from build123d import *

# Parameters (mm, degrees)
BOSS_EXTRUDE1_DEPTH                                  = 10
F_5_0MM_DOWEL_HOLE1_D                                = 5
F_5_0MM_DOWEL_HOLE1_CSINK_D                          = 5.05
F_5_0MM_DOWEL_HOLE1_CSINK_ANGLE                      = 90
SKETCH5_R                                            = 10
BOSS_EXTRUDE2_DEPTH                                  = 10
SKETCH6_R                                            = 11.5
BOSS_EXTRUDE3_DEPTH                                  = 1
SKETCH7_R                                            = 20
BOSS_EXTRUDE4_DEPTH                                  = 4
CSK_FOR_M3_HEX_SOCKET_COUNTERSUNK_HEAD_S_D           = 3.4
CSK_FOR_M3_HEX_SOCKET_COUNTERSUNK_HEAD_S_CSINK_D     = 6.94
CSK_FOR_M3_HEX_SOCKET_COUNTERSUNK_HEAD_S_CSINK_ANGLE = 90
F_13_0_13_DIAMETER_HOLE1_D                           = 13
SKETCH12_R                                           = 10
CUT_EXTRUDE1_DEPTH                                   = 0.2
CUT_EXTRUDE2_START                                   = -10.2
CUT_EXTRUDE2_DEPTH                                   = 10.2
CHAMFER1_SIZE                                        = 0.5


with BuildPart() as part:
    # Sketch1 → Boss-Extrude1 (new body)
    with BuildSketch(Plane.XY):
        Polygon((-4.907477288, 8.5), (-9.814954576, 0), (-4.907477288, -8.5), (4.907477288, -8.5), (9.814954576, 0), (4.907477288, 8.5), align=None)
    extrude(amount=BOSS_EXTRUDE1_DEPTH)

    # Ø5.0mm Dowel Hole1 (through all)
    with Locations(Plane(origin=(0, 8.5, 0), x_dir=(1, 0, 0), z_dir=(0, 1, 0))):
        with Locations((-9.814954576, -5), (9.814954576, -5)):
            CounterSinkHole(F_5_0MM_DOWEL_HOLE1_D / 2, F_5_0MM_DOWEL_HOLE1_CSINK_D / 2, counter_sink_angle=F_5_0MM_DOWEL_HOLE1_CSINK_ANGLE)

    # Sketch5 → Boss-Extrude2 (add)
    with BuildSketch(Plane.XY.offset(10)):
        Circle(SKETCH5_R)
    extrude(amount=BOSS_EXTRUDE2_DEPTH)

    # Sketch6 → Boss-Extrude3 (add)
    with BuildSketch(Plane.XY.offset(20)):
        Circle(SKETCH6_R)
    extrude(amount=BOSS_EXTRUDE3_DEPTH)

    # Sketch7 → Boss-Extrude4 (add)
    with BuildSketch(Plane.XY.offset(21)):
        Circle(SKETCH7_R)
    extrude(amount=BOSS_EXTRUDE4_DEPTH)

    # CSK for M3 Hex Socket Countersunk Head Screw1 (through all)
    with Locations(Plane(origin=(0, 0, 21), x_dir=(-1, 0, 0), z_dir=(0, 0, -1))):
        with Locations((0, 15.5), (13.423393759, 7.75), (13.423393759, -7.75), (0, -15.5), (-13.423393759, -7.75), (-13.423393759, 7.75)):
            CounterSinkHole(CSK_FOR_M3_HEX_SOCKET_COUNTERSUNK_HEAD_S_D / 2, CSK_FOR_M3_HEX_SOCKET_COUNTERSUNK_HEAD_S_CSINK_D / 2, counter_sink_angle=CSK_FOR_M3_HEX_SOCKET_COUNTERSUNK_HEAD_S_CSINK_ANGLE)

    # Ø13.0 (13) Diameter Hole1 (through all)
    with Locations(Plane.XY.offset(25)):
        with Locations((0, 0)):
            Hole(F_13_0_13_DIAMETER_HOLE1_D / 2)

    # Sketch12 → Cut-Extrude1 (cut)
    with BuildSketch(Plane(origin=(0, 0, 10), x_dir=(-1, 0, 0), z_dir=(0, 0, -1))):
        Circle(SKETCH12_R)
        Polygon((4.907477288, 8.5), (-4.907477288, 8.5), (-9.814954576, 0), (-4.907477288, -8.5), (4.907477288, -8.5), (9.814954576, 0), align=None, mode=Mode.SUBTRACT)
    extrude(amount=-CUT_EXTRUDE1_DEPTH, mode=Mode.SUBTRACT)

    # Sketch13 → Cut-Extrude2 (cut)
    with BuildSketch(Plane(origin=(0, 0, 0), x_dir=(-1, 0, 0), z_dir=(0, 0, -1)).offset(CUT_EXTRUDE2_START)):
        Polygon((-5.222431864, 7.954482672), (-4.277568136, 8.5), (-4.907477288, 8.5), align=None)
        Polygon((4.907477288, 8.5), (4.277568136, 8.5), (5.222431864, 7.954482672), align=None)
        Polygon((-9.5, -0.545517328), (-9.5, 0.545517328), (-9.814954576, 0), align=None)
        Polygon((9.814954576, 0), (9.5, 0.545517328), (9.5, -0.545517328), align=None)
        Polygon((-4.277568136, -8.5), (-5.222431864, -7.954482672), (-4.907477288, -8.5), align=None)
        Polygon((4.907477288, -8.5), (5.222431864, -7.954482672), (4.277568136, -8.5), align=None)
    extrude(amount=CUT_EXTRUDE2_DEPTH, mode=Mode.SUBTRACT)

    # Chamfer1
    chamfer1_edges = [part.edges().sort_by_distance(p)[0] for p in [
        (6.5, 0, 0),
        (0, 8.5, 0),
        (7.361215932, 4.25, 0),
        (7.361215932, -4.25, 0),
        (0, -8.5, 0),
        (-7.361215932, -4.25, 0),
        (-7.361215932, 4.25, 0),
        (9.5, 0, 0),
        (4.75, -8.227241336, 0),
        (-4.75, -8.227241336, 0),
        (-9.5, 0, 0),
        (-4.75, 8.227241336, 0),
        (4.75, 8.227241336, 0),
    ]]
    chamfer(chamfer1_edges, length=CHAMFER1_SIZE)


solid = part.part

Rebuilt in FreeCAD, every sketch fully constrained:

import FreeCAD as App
import Part
import Sketcher
from FreeCAD import Vector
Q = App.Units.Quantity


def edges_at(feature, points):
    """Names of the edges that pass closest to the given points."""
    edges = feature.Shape.Edges
    near = lambda p: min(range(len(edges)), key=lambda i: edges[i].distToShape(Part.Vertex(*p))[0])
    return sorted({f"Edge{near(p) + 1}" for p in points})


def add_polygon(sketch, points):
    """Adds a closed chain of lines whose ends are joined by coincident constraints."""
    first, n = sketch.GeometryCount, len(points)
    for a, b in zip(points, points[1:] + points[:1]):
        sketch.addGeometry(Part.LineSegment(App.Vector(*a, 0), App.Vector(*b, 0)), False)
    for i in range(n):
        sketch.addConstraint(Sketcher.Constraint("Coincident", first + i, 2, first + (i + 1) % n, 1))

doc = App.newDocument("Part")
body = doc.addObject("PartDesign::Body", "Body")

sketch1 = body.newObject("Sketcher::SketchObject", "Sketch")
sketch1.AttachmentSupport = (doc.getObject("XY_Plane"), [""])
sketch1.MapMode = "FlatFace"
add_polygon(sketch1, [(-5, 8), (-10, 0), (-5, -8), (5, -8), (10, 0), (5, 8)])
sketch1.addConstraint([
    Sketcher.Constraint("Horizontal", 2),
    Sketcher.Constraint("Horizontal", 5),
    Sketcher.Constraint("Symmetric", 0, 2, 3, 2, -1, 1),
    Sketcher.Constraint("Symmetric", 1, 2, 4, 2, -1, 1),
    Sketcher.Constraint("PointOnObject", 0, 2, -1),
    Sketcher.Constraint("Parallel", 0, 3),
    Sketcher.Constraint("Vertical", 2, 2, 4, 2),
    Sketcher.Constraint("Angle", 0, Q("-120 deg")),
    Sketcher.Constraint("DistanceY", 2, 2, 4, 2, Q("17 mm")),
    Sketcher.Constraint("DistanceX", 2, 1, 2, 2, Q("9.814955 mm")),
])
pad1 = body.newObject("PartDesign::Pad", "Pad")
pad1.Profile = sketch1
pad1.Length = 10

sketch2 = body.newObject("Sketcher::SketchObject", "Sketch001")
sketch2.AttachmentSupport = (doc.getObject("XZ_Plane"), [""])
sketch2.MapMode = "FlatFace"
sketch2.AttachmentOffset = App.Placement(Vector(0, 0, -8.5), App.Rotation())
sketch2.addGeometry([
    Part.Circle(Vector(-9.8, 5, 0), Vector(0, 0, 1), 2.5),
    Part.Circle(Vector(9.8, 5, 0), Vector(0, 0, 1), 2.5),
], False)
sketch2.addConstraint([
    Sketcher.Constraint("Equal", 0, 1),
    Sketcher.Constraint("Symmetric", 0, 3, 1, 3, -2),
    Sketcher.Constraint("Diameter", 0, Q("5 mm")),
    Sketcher.Constraint("DistanceY", -1, 1, 0, 3, Q("5 mm")),
    Sketcher.Constraint("DistanceX", 0, 3, 1, 3, Q("19.629909 mm")),
])
doc.recompute()
hole = body.newObject("PartDesign::Hole", "Hole")
hole.Profile = sketch2
hole.ThreadType = "None"
hole.Diameter = 5
hole.DepthType = "ThroughAll"
hole.HoleCutType = "Countersink"
hole.HoleCutDiameter = 5.05
hole.HoleCutCountersinkAngle = 90
hole.Reversed = True

sketch3 = body.newObject("Sketcher::SketchObject", "Sketch002")
sketch3.AttachmentSupport = (doc.getObject("XY_Plane"), [""])
sketch3.MapMode = "FlatFace"
sketch3.AttachmentOffset = App.Placement(Vector(0, 0, 10), App.Rotation())
sketch3.addGeometry(Part.Circle(Vector(0, 0, 0), Vector(0, 0, 1), 10), False)
sketch3.addConstraint([
    Sketcher.Constraint("Coincident", 0, 3, -1, 1),
    Sketcher.Constraint("Diameter", 0, Q("20 mm")),
])
pad2 = body.newObject("PartDesign::Pad", "Pad001")
pad2.Profile = sketch3
pad2.Length = 10

sketch4 = body.newObject("Sketcher::SketchObject", "Sketch003")
sketch4.AttachmentSupport = (doc.getObject("XY_Plane"), [""])
sketch4.MapMode = "FlatFace"
sketch4.AttachmentOffset = App.Placement(Vector(0, 0, 20), App.Rotation())
sketch4.addGeometry(Part.Circle(Vector(0, 0, 0), Vector(0, 0, 1), 12), False)
sketch4.addConstraint([
    Sketcher.Constraint("Coincident", 0, 3, -1, 1),
    Sketcher.Constraint("Diameter", 0, Q("23 mm")),
])
pad3 = body.newObject("PartDesign::Pad", "Pad002")
pad3.Profile = sketch4
pad3.Length = 1

sketch5 = body.newObject("Sketcher::SketchObject", "Sketch004")
sketch5.AttachmentSupport = (doc.getObject("XY_Plane"), [""])
sketch5.MapMode = "FlatFace"
sketch5.AttachmentOffset = App.Placement(Vector(0, 0, 21), App.Rotation())
sketch5.addGeometry(Part.Circle(Vector(0, 0, 0), Vector(0, 0, 1), 20), False)
sketch5.addConstraint([
    Sketcher.Constraint("Coincident", 0, 3, -1, 1),
    Sketcher.Constraint("Diameter", 0, Q("40 mm")),
])
pad4 = body.newObject("PartDesign::Pad", "Pad003")
pad4.Profile = sketch5
pad4.Length = 4

sketch6 = body.newObject("Sketcher::SketchObject", "Sketch005")
sketch6.AttachmentSupport = (doc.getObject("XY_Plane"), [""])
sketch6.MapMode = "FlatFace"
sketch6.AttachmentOffset = App.Placement(Vector(0, 0, 21), App.Rotation())
sketch6.addGeometry([
    Part.Circle(Vector(0, 15.5, 0), Vector(0, 0, 1), 1.7),
    Part.Circle(Vector(-13.4, 7.8, 0), Vector(0, 0, 1), 1.7),
    Part.Circle(Vector(-13.4, -7.8, 0), Vector(0, 0, 1), 1.7),
    Part.Circle(Vector(0, -15.5, 0), Vector(0, 0, 1), 1.7),
    Part.Circle(Vector(13.4, -7.8, 0), Vector(0, 0, 1), 1.7),
    Part.Circle(Vector(13.4, 7.8, 0), Vector(0, 0, 1), 1.7),
], False)
sketch6.addConstraint([
    Sketcher.Constraint("Equal", 0, 1),
    Sketcher.Constraint("Equal", 1, 2),
    Sketcher.Constraint("Equal", 2, 3),
    Sketcher.Constraint("Equal", 3, 4),
    Sketcher.Constraint("Equal", 4, 5),
    Sketcher.Constraint("Symmetric", 0, 3, 3, 3, -1, 1),
    Sketcher.Constraint("Symmetric", 1, 3, 4, 3, -1, 1),
    Sketcher.Constraint("Symmetric", 2, 3, 5, 3, -1, 1),
    Sketcher.Constraint("Symmetric", 2, 3, 4, 3, -2),
    Sketcher.Constraint("PointOnObject", 0, 3, -2),
    Sketcher.Constraint("Diameter", 0, Q("3.4 mm")),
    Sketcher.Constraint("DistanceY", 3, 3, 0, 3, Q("31 mm")),
    Sketcher.Constraint("DistanceY", 2, 3, 1, 3, Q("15.5 mm")),
    Sketcher.Constraint("DistanceX", 1, 3, -1, 1, Q("13.423394 mm")),
])
doc.recompute()
hole2 = body.newObject("PartDesign::Hole", "Hole001")
hole2.Profile = sketch6
hole2.ThreadType = "None"
hole2.Diameter = 3.4
hole2.DepthType = "ThroughAll"
hole2.HoleCutType = "Countersink"
hole2.HoleCutDiameter = 6.94
hole2.HoleCutCountersinkAngle = 90
hole2.Reversed = True

sketch7 = body.newObject("Sketcher::SketchObject", "Sketch006")
sketch7.AttachmentSupport = (doc.getObject("XY_Plane"), [""])
sketch7.MapMode = "FlatFace"
sketch7.AttachmentOffset = App.Placement(Vector(0, 0, 25), App.Rotation())
sketch7.addGeometry(Part.Circle(Vector(0, 0, 0), Vector(0, 0, 1), 6), False)
sketch7.addConstraint([
    Sketcher.Constraint("Coincident", 0, 3, -1, 1),
    Sketcher.Constraint("Diameter", 0, Q("13 mm")),
])
doc.recompute()
hole3 = body.newObject("PartDesign::Hole", "Hole002")
hole3.Profile = sketch7
hole3.ThreadType = "None"
hole3.Diameter = 13
hole3.DepthType = "ThroughAll"

sketch8 = body.newObject("Sketcher::SketchObject", "Sketch007")
sketch8.AttachmentSupport = (doc.getObject("XY_Plane"), [""])
sketch8.MapMode = "FlatFace"
sketch8.AttachmentOffset = App.Placement(Vector(0, 0, 10), App.Rotation())
sketch8.addGeometry(Part.Circle(Vector(0, 0, 0), Vector(0, 0, 1), 10), False)
add_polygon(sketch8, [(5, 8), (-5, 8), (-10, 0), (-5, -8), (5, -8), (10, 0)])
sketch8.addConstraint([
    Sketcher.Constraint("Horizontal", 1),
    Sketcher.Constraint("Horizontal", 4),
    Sketcher.Constraint("Coincident", 0, 3, -1, 1),
    Sketcher.Constraint("Symmetric", 1, 2, 4, 2, -1, 1),
    Sketcher.Constraint("Symmetric", 2, 2, 5, 2, -1, 1),
    Sketcher.Constraint("PointOnObject", 2, 2, -1),
    Sketcher.Constraint("Parallel", 3, 6),
    Sketcher.Constraint("Vertical", 1, 2, 3, 2),
    Sketcher.Constraint("Diameter", 0, Q("20 mm")),
    Sketcher.Constraint("Angle", 2, Q("-120 deg")),
    Sketcher.Constraint("DistanceY", 3, 2, 1, 2, Q("17 mm")),
    Sketcher.Constraint("DistanceX", 1, 2, 1, 1, Q("9.814955 mm")),
])
pocket1 = body.newObject("PartDesign::Pocket", "Pocket")
pocket1.Profile = sketch8
pocket1.Length = 0.2
pocket1.Reversed = True

sketch9 = body.newObject("Sketcher::SketchObject", "Sketch008")
sketch9.AttachmentSupport = (doc.getObject("XY_Plane"), [""])
sketch9.MapMode = "FlatFace"
sketch9.AttachmentOffset = App.Placement(Vector(0, 0, 10.2), App.Rotation())
add_polygon(sketch9, [(5.2, 8), (4.3, 8.5), (4.9, 8.5)])
add_polygon(sketch9, [(-4.9, 8.5), (-4.3, 8.5), (-5.2, 8)])
add_polygon(sketch9, [(9.5, -0.5), (9.5, 0.5), (9.8, 0)])
add_polygon(sketch9, [(-9.8, 0), (-9.5, 0.5), (-9.5, -0.5)])
add_polygon(sketch9, [(4.3, -8.5), (5.2, -8), (4.9, -8.5)])
add_polygon(sketch9, [(-4.9, -8.5), (-5.2, -8), (-4.3, -8.5)])
sketch9.addConstraint([
    Sketcher.Constraint("Horizontal", 1),
    Sketcher.Constraint("Horizontal", 3),
    Sketcher.Constraint("Vertical", 6),
    Sketcher.Constraint("Vertical", 10),
    Sketcher.Constraint("Horizontal", 14),
    Sketcher.Constraint("Horizontal", 17),
    Sketcher.Constraint("Symmetric", 8, 2, 9, 2, -1, 1),
    Sketcher.Constraint("Symmetric", 7, 2, 11, 2, -1, 1),
    Sketcher.Constraint("Symmetric", 4, 2, 12, 2, -1, 1),
    Sketcher.Constraint("Symmetric", 5, 2, 13, 2, -1, 1),
    Sketcher.Constraint("Symmetric", 2, 2, 15, 2, -1, 1),
    Sketcher.Constraint("Symmetric", 0, 2, 16, 2, -1, 1),
    Sketcher.Constraint("Symmetric", 0, 2, 3, 2, -2),
    Sketcher.Constraint("Symmetric", 2, 2, 4, 2, -2),
    Sketcher.Constraint("PointOnObject", 7, 2, -1),
    Sketcher.Constraint("Perpendicular", 2, 4),
    Sketcher.Constraint("Perpendicular", 0, 5),
    Sketcher.Constraint("Perpendicular", 4, 7),
    Sketcher.Constraint("Parallel", 5, 8),
    Sketcher.Constraint("Parallel", 7, 11),
    Sketcher.Constraint("Perpendicular", 11, 12),
    Sketcher.Constraint("Perpendicular", 12, 15),
    Sketcher.Constraint("Equal", 5, 7),
    Sketcher.Constraint("Angle", 0, Q("150 deg")),
    Sketcher.Constraint("DistanceY", -1, 1, 0, 2, Q("8.5 mm")),
    Sketcher.Constraint("DistanceX", -1, 1, 6, 2, Q("9.5 mm")),
    Sketcher.Constraint("DistanceX", 3, 2, 2, 2, Q("9.5 mm")),
    Sketcher.Constraint("DistanceX", 1, 1, 1, 2, Q("0.629909 mm")),
])
pocket2 = body.newObject("PartDesign::Pocket", "Pocket001")
pocket2.Profile = sketch9
pocket2.Length = 10.2
doc.recompute()

chamfer = body.newObject("PartDesign::Chamfer", "Chamfer")
chamfer.Base = (pocket2, edges_at(pocket2, [
    (6.5, 0, 0),
    (0, 8.5, 0),
    (7.361, 4.25, 0),
    (7.361, -4.25, 0),
    (0, -8.5, 0),
    (-7.361, -4.25, 0),
    (-7.361, 4.25, 0),
    (9.5, 0, 0),
    (4.75, -8.227, 0),
    (-4.75, -8.227, 0),
    (-9.5, 0, 0),
    (-4.75, 8.227, 0),
    (4.75, 8.227, 0),
]))
chamfer.Size = 0.5

doc.recompute()
